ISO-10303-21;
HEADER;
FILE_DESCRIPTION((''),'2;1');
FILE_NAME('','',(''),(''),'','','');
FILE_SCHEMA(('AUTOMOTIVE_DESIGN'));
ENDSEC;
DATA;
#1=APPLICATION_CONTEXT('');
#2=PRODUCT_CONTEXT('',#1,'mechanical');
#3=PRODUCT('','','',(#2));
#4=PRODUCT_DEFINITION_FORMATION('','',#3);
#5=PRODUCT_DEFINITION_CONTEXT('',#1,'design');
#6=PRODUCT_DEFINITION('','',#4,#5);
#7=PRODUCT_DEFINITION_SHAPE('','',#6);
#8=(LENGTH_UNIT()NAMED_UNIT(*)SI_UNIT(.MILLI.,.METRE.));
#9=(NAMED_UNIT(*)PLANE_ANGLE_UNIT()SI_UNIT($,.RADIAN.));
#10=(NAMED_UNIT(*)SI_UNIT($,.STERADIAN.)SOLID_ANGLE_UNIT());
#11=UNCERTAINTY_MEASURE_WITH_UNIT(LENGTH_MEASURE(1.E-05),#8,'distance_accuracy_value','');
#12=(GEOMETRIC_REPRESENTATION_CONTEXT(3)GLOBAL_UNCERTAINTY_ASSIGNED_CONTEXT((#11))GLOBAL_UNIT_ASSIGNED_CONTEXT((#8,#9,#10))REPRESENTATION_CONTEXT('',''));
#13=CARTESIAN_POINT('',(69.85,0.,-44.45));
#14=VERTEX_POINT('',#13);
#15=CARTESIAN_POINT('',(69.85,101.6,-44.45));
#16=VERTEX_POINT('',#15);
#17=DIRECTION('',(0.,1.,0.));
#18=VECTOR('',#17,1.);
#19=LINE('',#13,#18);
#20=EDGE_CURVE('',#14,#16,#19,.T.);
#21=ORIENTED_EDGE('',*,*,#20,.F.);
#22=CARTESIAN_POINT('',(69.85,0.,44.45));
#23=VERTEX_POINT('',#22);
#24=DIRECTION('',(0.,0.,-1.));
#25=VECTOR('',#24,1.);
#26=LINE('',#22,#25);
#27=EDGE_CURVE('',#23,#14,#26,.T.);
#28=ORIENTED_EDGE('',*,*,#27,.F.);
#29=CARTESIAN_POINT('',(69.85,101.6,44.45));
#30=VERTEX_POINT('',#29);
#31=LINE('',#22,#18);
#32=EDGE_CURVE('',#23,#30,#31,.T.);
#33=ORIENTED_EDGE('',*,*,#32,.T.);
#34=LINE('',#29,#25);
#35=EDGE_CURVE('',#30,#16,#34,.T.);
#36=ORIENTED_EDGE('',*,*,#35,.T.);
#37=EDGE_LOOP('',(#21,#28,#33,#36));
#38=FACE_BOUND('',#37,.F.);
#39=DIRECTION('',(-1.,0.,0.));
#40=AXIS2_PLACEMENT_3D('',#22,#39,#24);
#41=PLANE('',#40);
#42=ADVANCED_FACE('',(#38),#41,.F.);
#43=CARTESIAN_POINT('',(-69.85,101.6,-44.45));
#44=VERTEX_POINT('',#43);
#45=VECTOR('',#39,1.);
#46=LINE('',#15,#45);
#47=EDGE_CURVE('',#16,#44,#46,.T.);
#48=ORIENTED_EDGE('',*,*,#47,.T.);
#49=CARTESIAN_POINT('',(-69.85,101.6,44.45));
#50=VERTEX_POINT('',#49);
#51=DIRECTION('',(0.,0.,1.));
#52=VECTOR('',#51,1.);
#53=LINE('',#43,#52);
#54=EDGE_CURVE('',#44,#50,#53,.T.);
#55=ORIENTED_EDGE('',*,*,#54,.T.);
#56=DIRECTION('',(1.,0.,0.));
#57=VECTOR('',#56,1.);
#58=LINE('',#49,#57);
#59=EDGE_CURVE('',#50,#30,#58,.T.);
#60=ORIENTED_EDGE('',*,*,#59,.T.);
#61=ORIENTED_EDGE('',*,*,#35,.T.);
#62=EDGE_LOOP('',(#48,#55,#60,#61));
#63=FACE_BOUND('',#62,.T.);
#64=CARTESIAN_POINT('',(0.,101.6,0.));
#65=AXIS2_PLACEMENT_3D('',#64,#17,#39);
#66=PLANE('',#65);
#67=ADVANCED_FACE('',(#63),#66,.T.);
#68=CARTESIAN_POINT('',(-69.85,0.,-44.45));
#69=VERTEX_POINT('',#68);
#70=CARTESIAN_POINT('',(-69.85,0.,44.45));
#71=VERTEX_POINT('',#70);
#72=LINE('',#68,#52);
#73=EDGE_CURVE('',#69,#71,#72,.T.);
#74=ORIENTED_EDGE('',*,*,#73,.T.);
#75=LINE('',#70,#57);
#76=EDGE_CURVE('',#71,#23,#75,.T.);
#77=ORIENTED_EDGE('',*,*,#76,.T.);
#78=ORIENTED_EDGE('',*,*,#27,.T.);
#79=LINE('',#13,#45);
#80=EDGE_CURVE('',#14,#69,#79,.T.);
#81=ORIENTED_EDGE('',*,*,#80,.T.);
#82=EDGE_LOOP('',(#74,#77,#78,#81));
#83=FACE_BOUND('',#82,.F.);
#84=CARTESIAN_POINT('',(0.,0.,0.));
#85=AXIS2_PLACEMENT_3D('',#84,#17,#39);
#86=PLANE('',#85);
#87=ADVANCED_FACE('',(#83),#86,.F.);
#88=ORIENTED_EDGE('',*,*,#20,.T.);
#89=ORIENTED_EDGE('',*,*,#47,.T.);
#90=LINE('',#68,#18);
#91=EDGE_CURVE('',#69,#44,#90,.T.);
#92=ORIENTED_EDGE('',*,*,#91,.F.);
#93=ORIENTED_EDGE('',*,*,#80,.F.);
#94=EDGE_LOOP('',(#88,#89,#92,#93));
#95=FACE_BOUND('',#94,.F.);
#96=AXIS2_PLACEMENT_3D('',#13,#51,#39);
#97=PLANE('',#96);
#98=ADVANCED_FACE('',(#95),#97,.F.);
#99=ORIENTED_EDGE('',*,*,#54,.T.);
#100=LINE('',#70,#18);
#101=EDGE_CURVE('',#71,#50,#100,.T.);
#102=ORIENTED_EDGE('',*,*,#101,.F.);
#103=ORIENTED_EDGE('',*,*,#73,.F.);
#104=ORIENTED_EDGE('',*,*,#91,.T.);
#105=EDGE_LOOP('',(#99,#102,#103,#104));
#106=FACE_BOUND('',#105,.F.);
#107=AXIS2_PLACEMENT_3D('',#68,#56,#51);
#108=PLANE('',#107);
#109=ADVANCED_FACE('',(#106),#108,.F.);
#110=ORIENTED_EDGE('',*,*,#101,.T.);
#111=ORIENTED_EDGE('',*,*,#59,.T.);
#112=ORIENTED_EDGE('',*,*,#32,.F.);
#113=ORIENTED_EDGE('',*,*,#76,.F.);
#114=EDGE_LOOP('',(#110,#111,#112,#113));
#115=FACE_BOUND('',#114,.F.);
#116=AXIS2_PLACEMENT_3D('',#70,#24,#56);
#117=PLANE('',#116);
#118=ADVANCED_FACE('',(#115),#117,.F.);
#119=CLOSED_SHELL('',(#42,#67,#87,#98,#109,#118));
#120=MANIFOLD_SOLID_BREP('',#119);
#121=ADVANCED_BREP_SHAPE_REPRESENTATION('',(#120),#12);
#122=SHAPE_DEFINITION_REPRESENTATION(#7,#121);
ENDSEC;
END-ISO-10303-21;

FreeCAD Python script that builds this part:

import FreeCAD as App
import Part
import Sketcher
Q = App.Units.Quantity


def add_polygon(sketch, points):
    """Adds a closed chain of lines whose ends are joined by coincident constraints."""
    first, n = sketch.GeometryCount, len(points)
    for a, b in zip(points, points[1:] + points[:1]):
        sketch.addGeometry(Part.LineSegment(App.Vector(*a, 0), App.Vector(*b, 0)), False)
    for i in range(n):
        sketch.addConstraint(Sketcher.Constraint("Coincident", first + i, 2, first + (i + 1) % n, 1))

doc = App.newDocument("Part")
body = doc.addObject("PartDesign::Body", "Body")

# Sketch on XZ plane
sketch1 = body.newObject("Sketcher::SketchObject", "Sketch")
sketch1.AttachmentSupport = (doc.getObject("XZ_Plane"), [""])
sketch1.MapMode = "FlatFace"
add_polygon(sketch1, [(70, 44), (70, -44), (-70, -44), (-70, 44)])  # lines 0-3
sketch1.addConstraint([
    Sketcher.Constraint("Vertical", 0),
    Sketcher.Constraint("Horizontal", 1),
    Sketcher.Constraint("Vertical", 2),
    Sketcher.Constraint("Horizontal", 3),
    Sketcher.Constraint("Symmetric", 0, 2, 2, 2, -1, 1),
    Sketcher.Constraint("DistanceX", 1, 2, 1, 1, Q("5.5 in")),
    Sketcher.Constraint("DistanceY", 0, 2, 0, 1, Q("3.5 in")),
])
pad1 = body.newObject("PartDesign::Pad", "Pad")
pad1.Profile = sketch1
pad1.Length = Q("4 in")
pad1.Reversed = True

doc.recompute()
